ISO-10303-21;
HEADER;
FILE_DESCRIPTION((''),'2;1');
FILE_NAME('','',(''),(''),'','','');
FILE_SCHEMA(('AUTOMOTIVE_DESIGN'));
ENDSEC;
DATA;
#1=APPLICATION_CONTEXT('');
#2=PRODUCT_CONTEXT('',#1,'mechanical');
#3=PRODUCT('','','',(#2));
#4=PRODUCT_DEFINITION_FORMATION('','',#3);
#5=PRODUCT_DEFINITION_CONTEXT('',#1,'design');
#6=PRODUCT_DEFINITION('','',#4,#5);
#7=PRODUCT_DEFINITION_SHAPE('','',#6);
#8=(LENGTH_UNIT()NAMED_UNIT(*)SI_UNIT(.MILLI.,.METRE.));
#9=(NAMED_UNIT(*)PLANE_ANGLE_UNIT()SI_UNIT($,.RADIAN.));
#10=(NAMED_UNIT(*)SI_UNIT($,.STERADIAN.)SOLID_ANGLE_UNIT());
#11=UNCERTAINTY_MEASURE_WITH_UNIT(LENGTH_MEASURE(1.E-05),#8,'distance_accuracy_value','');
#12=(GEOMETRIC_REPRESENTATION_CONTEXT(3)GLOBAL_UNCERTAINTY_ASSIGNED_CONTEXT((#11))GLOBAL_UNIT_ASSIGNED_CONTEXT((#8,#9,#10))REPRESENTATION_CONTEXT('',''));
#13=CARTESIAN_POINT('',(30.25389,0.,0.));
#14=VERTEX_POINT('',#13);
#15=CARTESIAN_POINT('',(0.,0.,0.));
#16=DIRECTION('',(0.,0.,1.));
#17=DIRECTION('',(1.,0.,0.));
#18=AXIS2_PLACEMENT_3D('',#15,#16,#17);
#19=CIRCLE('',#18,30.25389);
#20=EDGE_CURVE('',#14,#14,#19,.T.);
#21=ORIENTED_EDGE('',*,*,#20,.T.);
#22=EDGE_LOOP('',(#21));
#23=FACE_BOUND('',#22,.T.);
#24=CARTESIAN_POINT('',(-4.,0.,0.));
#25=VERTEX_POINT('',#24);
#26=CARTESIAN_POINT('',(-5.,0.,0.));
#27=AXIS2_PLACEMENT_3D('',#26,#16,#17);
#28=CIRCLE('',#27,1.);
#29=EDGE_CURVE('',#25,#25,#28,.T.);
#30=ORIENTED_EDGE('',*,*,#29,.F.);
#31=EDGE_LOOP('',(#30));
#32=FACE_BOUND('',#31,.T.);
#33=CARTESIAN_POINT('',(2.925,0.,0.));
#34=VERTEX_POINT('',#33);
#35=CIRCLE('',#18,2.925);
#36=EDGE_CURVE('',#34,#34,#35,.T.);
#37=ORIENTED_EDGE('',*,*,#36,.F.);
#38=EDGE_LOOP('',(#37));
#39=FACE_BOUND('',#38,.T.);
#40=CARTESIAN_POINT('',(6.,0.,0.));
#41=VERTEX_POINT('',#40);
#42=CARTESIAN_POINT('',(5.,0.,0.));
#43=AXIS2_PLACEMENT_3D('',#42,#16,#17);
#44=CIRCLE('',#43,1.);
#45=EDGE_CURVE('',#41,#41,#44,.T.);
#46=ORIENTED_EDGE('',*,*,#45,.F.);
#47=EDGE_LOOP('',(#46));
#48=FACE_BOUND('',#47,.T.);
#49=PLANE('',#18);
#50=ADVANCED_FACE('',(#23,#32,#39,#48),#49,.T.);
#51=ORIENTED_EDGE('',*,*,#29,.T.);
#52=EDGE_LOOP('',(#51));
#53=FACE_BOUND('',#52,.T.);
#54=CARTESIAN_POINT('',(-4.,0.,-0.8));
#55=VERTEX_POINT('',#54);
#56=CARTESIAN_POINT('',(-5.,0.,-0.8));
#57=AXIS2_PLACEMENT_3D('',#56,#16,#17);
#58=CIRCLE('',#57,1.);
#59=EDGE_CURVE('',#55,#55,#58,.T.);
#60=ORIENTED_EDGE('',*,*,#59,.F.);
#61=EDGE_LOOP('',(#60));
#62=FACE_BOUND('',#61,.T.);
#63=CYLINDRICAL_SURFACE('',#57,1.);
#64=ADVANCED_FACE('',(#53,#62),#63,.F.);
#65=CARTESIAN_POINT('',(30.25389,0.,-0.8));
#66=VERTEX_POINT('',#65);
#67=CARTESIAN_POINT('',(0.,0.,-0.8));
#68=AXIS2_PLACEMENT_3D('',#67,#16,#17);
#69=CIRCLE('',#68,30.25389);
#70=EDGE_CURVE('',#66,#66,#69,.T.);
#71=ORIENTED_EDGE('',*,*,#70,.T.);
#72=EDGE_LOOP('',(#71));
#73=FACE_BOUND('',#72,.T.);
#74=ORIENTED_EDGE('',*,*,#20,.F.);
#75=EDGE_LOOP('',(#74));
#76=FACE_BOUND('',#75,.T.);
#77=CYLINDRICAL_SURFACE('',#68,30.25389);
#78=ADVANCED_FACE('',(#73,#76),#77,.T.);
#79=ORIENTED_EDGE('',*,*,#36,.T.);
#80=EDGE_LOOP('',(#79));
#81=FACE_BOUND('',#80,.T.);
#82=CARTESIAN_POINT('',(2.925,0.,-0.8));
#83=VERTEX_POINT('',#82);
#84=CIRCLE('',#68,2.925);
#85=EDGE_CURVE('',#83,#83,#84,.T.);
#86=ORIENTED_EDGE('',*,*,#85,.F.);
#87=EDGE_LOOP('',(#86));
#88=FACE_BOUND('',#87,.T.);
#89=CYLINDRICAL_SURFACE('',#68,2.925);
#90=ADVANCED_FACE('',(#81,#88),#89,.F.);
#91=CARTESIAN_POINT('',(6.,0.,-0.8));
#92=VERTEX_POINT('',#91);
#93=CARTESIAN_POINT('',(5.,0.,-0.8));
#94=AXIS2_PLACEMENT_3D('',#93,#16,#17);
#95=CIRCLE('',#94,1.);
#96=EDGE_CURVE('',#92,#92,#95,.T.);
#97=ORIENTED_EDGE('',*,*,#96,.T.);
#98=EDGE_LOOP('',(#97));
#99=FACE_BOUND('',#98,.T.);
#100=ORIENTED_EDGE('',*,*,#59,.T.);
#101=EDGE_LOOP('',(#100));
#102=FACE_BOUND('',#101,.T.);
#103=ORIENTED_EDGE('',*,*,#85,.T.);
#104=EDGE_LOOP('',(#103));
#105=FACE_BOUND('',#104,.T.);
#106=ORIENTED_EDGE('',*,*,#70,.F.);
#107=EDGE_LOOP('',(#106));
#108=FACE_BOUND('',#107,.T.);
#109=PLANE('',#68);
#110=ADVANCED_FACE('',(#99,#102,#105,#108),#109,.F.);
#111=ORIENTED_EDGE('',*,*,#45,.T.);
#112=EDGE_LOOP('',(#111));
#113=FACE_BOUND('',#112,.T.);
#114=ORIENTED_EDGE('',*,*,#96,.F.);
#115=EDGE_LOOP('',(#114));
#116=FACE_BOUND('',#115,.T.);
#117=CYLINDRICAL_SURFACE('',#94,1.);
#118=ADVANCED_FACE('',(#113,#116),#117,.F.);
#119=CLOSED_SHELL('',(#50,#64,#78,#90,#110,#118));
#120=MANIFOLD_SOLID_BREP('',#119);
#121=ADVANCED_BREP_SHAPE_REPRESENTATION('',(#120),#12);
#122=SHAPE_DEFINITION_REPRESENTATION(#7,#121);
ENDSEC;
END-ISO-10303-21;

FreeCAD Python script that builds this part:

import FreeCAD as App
import Part
import Sketcher

V = App.Vector

doc = App.newDocument("Part")
params = doc.addObject("Spreadsheet::Sheet", "Params")
for row, (alias, value) in enumerate([
    ("sketch1_diameter", "2 mm"),
    ("sketch1_diameter2", "5.85 mm"),
    ("pad1_length", "0.8 mm"),
], start=1):
    params.set(f"A{row}", alias)
    params.set(f"B{row}", "=" + value)
    params.setAlias(f"B{row}", alias)

body = doc.addObject("PartDesign::Body", "Body")

sketch1 = doc.addObject("Sketcher::SketchObject", "Sketch")
body.addObject(sketch1)
sketch1.AttachmentSupport = (doc.XY_Plane, [""])
sketch1.MapMode = "FlatFace"
sketch1.addGeometry(Part.Circle(V(0, 0, 0), V(0, 0, 1), 30.3), False)
sketch1.addGeometry(Part.Circle(V(-5, 0, 0), V(0, 0, 1), 1), False)
sketch1.addGeometry(Part.Circle(V(0, 0, 0), V(0, 0, 1), 2.9), False)
sketch1.addGeometry(Part.Circle(V(5, 0, 0), V(0, 0, 1), 1), False)
sketch1.addConstraint(Sketcher.Constraint("Coincident", 0, 3, -1, 1))
sketch1.addConstraint(Sketcher.Constraint("Coincident", 2, 3, -1, 1))
sketch1.addConstraint(Sketcher.Constraint("Equal", 1, 3))
sketch1.addConstraint(Sketcher.Constraint("Symmetric", 1, 3, 3, 3, -1, 1))
sketch1.addConstraint(Sketcher.Constraint("PointOnObject", 1, 3, -1))
sketch1.addConstraint(Sketcher.Constraint("Diameter", 1, 2.0))
sketch1.addConstraint(Sketcher.Constraint("Diameter", 2, 5.85))
sketch1.addConstraint(Sketcher.Constraint("DistanceX", 1, 3, -1, 1, 5.0))
sketch1.addConstraint(Sketcher.Constraint("Diameter", 0, 60.50778))
sketch1.setExpression("Constraints[5]", "Params.sketch1_diameter")
sketch1.setExpression("Constraints[6]", "Params.sketch1_diameter2")
pad1 = doc.addObject("PartDesign::Pad", "Pad")
body.addObject(pad1)
pad1.Profile = sketch1
pad1.setExpression("Length", "Params.pad1_length")
pad1.Reversed = True

doc.recompute()
